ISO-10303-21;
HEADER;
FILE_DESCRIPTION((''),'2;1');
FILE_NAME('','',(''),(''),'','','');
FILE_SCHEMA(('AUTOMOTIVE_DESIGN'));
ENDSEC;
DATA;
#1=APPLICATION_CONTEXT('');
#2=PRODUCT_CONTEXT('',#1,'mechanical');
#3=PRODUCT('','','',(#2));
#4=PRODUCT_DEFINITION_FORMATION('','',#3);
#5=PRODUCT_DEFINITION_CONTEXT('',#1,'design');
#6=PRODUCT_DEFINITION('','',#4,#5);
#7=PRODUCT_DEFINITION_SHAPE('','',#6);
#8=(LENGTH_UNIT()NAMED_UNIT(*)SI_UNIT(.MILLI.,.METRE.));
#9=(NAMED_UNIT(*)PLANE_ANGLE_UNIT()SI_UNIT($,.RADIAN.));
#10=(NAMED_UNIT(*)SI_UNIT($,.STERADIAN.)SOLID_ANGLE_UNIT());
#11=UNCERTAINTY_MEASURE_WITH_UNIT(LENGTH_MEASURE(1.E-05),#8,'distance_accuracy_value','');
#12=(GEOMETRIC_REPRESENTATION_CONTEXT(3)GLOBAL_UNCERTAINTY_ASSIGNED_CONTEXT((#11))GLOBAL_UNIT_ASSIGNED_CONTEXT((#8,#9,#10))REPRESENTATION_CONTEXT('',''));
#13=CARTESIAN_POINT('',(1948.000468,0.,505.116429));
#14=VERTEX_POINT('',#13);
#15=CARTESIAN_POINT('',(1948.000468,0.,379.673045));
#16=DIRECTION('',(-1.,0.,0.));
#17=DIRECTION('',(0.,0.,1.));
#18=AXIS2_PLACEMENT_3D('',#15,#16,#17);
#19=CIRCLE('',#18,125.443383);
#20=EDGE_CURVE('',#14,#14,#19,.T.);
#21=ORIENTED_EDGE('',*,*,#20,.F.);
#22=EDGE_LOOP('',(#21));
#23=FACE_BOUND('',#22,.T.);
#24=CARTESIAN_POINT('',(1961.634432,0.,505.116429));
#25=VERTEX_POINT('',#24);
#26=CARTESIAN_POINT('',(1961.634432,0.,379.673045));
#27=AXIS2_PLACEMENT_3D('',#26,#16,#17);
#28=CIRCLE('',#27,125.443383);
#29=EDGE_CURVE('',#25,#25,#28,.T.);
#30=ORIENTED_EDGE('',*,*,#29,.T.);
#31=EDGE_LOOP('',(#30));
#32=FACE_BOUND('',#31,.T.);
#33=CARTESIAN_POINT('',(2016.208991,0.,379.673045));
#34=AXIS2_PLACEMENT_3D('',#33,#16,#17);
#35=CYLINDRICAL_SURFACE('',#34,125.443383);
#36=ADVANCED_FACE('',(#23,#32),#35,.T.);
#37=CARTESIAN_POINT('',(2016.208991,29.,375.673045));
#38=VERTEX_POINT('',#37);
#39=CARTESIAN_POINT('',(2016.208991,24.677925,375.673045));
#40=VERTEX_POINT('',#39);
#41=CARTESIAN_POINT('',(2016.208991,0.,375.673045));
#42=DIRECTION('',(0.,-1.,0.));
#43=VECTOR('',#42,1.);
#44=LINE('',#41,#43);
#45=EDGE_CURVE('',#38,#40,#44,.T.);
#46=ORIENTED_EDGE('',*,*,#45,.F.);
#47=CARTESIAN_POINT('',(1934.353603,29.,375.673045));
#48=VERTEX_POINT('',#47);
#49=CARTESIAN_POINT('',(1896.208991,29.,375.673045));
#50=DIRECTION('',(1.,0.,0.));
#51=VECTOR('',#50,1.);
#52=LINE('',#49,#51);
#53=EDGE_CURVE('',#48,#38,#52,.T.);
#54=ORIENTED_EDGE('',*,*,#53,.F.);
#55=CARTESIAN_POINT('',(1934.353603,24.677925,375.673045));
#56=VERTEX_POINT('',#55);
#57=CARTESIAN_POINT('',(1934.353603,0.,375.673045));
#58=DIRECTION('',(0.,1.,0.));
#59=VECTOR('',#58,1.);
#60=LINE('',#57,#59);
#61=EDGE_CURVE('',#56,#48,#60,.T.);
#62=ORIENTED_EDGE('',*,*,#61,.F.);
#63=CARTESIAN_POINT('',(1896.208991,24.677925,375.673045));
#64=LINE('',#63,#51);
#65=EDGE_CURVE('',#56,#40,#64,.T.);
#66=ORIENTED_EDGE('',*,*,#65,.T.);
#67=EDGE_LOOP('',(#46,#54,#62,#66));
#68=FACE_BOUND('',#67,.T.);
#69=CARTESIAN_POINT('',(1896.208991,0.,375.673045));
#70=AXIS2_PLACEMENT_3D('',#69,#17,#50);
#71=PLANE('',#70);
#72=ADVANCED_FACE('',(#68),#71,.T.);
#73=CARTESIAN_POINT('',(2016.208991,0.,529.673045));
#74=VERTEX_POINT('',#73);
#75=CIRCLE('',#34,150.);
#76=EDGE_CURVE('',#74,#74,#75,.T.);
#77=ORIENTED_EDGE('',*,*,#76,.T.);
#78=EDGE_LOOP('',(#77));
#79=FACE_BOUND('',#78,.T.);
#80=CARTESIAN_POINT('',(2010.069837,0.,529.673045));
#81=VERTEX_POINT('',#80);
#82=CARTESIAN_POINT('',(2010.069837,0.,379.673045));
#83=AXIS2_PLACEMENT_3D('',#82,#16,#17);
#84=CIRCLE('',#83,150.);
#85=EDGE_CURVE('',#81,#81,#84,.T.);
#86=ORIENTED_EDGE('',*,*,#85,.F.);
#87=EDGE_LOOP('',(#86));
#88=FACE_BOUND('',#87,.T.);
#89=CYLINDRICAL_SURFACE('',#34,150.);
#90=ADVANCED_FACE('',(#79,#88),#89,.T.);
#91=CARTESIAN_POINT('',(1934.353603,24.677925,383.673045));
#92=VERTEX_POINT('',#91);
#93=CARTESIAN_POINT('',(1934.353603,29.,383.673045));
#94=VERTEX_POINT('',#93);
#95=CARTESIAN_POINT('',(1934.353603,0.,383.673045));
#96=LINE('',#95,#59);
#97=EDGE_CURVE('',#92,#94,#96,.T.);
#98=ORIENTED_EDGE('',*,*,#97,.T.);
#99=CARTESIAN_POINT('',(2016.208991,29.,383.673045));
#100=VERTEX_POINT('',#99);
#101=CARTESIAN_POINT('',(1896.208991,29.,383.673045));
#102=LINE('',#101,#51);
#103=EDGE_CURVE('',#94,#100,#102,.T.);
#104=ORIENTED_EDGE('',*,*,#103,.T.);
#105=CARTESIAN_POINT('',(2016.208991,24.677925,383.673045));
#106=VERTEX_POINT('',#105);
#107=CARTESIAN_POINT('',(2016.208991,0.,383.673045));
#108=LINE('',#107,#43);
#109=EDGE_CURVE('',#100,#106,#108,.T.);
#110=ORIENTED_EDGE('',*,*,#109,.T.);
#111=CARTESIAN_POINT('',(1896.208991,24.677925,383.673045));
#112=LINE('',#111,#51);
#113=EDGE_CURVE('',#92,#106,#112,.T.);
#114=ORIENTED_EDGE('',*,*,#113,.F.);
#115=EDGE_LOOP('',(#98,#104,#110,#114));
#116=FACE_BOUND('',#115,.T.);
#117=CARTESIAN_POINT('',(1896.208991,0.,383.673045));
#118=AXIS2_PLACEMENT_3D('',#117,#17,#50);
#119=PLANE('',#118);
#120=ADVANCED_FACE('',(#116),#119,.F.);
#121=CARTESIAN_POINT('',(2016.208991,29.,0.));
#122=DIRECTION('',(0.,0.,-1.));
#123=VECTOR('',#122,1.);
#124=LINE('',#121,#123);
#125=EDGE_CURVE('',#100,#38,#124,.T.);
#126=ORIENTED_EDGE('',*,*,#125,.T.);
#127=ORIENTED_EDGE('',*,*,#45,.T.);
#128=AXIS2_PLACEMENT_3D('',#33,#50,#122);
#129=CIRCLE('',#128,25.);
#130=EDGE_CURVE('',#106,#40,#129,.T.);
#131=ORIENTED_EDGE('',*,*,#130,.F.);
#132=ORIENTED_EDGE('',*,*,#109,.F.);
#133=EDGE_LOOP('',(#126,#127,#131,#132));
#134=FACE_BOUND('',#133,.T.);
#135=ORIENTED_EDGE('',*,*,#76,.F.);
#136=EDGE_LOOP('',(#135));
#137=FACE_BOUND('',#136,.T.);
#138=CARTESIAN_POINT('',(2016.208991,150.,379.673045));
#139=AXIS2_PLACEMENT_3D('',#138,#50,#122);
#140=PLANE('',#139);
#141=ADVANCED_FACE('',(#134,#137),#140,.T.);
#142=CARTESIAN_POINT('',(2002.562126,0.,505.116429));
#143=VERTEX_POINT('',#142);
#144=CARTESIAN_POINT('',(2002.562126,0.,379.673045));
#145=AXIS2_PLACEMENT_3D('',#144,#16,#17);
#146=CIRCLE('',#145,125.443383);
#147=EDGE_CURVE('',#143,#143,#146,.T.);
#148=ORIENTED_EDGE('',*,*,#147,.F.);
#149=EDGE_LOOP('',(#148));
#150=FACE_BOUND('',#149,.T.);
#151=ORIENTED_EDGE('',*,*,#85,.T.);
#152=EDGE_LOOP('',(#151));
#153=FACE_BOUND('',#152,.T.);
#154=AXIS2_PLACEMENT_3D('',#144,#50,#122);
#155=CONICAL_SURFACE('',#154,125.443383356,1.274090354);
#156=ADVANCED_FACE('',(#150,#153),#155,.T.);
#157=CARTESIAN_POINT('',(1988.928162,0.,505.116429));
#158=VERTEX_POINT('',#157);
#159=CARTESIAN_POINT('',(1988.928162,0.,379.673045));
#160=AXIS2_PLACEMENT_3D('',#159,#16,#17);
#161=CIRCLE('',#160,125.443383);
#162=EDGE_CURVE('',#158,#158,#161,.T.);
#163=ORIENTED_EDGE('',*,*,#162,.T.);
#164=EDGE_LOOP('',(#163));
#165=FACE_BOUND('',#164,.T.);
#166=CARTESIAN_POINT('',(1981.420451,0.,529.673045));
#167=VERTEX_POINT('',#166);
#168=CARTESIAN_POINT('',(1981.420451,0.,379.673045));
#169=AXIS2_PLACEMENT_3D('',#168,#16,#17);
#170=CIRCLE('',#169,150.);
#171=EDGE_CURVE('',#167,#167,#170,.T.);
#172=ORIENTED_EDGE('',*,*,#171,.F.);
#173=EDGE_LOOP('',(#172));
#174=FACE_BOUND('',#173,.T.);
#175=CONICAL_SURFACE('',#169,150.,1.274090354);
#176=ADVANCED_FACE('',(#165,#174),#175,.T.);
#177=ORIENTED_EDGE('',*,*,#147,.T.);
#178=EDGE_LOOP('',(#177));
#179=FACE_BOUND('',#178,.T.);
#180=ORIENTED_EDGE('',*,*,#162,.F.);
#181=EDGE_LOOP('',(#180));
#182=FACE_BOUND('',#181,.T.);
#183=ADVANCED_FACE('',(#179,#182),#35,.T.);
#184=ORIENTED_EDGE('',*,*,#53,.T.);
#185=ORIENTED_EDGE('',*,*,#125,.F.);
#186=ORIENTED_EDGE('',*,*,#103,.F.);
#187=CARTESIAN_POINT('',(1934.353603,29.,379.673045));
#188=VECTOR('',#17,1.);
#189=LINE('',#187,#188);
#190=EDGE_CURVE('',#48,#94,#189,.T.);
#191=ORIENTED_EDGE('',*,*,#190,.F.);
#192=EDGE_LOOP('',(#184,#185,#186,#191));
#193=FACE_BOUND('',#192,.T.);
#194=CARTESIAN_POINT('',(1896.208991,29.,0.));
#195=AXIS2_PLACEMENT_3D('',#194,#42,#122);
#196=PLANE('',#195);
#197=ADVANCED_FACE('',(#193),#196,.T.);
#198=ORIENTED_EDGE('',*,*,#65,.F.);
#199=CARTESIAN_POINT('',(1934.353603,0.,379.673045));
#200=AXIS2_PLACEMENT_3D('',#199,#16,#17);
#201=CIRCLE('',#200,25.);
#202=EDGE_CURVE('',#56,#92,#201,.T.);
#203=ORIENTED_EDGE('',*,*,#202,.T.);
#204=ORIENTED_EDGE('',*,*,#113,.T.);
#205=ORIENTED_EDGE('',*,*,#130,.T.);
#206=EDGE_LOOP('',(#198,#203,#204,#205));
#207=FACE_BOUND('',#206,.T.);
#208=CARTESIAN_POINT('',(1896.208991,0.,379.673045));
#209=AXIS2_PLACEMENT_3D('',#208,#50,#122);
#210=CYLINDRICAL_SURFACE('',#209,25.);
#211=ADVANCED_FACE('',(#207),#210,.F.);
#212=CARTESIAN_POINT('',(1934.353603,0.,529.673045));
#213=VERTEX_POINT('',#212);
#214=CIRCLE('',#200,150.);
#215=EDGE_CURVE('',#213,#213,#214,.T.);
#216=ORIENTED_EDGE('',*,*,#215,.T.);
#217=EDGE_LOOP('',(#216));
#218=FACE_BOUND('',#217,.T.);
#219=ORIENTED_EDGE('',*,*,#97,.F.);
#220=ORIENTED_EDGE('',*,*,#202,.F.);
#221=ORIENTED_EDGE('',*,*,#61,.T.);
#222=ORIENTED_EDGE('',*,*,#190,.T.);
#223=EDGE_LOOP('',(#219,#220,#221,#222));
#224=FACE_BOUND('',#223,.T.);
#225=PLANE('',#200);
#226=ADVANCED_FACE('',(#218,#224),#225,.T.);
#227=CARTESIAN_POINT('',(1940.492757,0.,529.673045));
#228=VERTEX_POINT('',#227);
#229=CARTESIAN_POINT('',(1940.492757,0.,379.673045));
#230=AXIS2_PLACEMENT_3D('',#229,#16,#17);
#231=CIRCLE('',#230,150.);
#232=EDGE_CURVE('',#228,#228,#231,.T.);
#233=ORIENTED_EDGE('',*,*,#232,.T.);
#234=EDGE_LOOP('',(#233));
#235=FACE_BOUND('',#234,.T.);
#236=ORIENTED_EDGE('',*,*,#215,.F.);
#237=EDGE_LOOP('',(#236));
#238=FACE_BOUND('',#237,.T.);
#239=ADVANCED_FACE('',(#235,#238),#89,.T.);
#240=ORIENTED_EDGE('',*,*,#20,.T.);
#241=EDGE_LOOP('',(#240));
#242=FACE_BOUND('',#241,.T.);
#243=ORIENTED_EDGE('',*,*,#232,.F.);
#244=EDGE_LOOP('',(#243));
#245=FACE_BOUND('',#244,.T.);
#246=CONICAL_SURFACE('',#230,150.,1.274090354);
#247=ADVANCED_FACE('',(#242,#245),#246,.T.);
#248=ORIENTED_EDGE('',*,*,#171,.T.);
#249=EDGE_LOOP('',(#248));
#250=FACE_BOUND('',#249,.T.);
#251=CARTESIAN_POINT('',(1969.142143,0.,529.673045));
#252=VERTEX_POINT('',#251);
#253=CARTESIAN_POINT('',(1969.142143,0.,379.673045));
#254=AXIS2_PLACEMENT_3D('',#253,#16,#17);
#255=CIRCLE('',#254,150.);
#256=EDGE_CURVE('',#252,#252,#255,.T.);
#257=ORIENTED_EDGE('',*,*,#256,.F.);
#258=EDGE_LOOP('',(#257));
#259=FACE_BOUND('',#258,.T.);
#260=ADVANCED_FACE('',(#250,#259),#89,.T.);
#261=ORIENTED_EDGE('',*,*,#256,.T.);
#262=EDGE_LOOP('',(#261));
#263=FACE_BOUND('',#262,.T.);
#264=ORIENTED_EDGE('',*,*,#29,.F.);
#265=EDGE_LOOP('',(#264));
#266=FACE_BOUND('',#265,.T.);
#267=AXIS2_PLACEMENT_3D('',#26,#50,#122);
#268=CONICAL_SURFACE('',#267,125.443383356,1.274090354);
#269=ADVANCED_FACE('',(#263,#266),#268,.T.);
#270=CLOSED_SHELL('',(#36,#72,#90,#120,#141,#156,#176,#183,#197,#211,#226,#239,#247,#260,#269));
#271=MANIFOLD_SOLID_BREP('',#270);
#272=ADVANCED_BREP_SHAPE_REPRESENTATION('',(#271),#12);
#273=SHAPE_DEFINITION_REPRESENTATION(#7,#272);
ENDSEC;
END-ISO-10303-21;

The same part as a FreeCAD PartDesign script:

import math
import FreeCAD as App
import Part
import Sketcher
from FreeCAD import Vector
Q = App.Units.Quantity


def add_polygon(sketch, points):
    """Adds a closed chain of lines whose ends are joined by coincident constraints."""
    first, n = sketch.GeometryCount, len(points)
    for a, b in zip(points, points[1:] + points[:1]):
        sketch.addGeometry(Part.LineSegment(App.Vector(*a, 0), App.Vector(*b, 0)), False)
    for i in range(n):
        sketch.addConstraint(Sketcher.Constraint("Coincident", first + i, 2, first + (i + 1) % n, 1))

doc = App.newDocument("Part")
body = doc.addObject("PartDesign::Body", "Body")

# Sketch on XY plane
sketch1 = body.newObject("Sketcher::SketchObject", "Sketch")
sketch1.AttachmentSupport = (doc.getObject("XY_Plane"), [""])
sketch1.MapMode = "FlatFace"
sketch1.AttachmentOffset = App.Placement(Vector(0, 0, 379.673045), App.Rotation())
add_polygon(sketch1, [(2016.208991, 150), (2016.208991, 0), (1934.353603, 0), (1934.353603, 150), (1940.492757, 150), (1948.000468, 125.443383), (1961.634432, 125.443383), (1969.142143, 150), (1981.420451, 150), (1988.928162, 125.443383), (2002.562126, 125.443383), (2010.069837, 150)])  # lines 0-11
sketch1.addConstraint([
    Sketcher.Constraint("Vertical", 0),
    Sketcher.Constraint("Horizontal", 1),
    Sketcher.Constraint("Vertical", 2),
    Sketcher.Constraint("Horizontal", 3),
    Sketcher.Constraint("Horizontal", 5),
    Sketcher.Constraint("Horizontal", 7),
    Sketcher.Constraint("Horizontal", 9),
    Sketcher.Constraint("Horizontal", 11),
    Sketcher.Constraint("PointOnObject", 0, 2, -1),
    Sketcher.Constraint("Parallel", 4, 8),
    Sketcher.Constraint("Parallel", 6, 10),
    Sketcher.Constraint("Horizontal", 3, 2, 6, 2),
    Sketcher.Constraint("Horizontal", 5, 2, 8, 2),
    Sketcher.Constraint("Horizontal", 7, 2, 10, 2),
    Sketcher.Constraint("Equal", 5, 9),
    Sketcher.Constraint("Equal", 3, 11),
    Sketcher.Constraint("Equal", 4, 6),
    Sketcher.Constraint("DistanceY", 0, 2, 0, 1, Q("150 mm")),
    Sketcher.Constraint("Angle", 4, Q("-73 deg")),
    Sketcher.Constraint("DistanceX", 1, 2, 1, 1, Q("81.855389 mm")),
    Sketcher.Constraint("DistanceX", 7, 1, 7, 2, Q("12.278308 mm")),
    Sketcher.Constraint("Distance", 4, Q("25.678652 mm")),
    Sketcher.Constraint("DistanceX", 3, 1, 3, 2, Q("6.139154 mm")),
    Sketcher.Constraint("DistanceX", -1, 1, 0, 2, Q("2016.208991 mm")),
])
revolution = body.newObject("PartDesign::Revolution", "Revolution")
revolution.Profile = sketch1
revolution.ReferenceAxis = (sketch1, ["H_Axis"])
revolution.Angle = 360

# Sketch on YZ plane
sketch2 = body.newObject("Sketcher::SketchObject", "Sketch001")
sketch2.AttachmentSupport = (doc.getObject("YZ_Plane"), [""])
sketch2.MapMode = "FlatFace"
sketch2.AttachmentOffset = App.Placement(Vector(0, 0, 1934.353603), App.Rotation())
sketch2.addGeometry(Part.Circle(Vector(0, 379.673045, 0), Vector(0, 0, 1), 20), False)
sketch2.addConstraint([
    Sketcher.Constraint("PointOnObject", 0, 3, -2),
    Sketcher.Constraint("Diameter", 0, Q("40 mm")),
    Sketcher.Constraint("DistanceY", -1, 1, 0, 3, Q("379.673045 mm")),
])
pocket1 = body.newObject("PartDesign::Pocket", "Pocket")
pocket1.Profile = sketch2
pocket1.Length = 160
pocket1.Reversed = True

# Sketch on YZ plane
sketch3 = body.newObject("Sketcher::SketchObject", "Sketch002")
sketch3.AttachmentSupport = (doc.getObject("YZ_Plane"), [""])
sketch3.MapMode = "FlatFace"
sketch3.AttachmentOffset = App.Placement(Vector(0, 0, 2016.208991), App.Rotation())
sketch3.addGeometry(Part.Circle(Vector(0, 379.673045, 0), Vector(0, 0, 1), 25), False)
sketch3.addConstraint([
    Sketcher.Constraint("PointOnObject", 0, 3, -2),
    Sketcher.Constraint("Diameter", 0, Q("50 mm")),
    Sketcher.Constraint("DistanceY", -1, 1, 0, 3, Q("379.673045 mm")),
])
pocket2 = body.newObject("PartDesign::Pocket", "Pocket001")
pocket2.Profile = sketch3
pocket2.Length = 120

# Sketch on YZ plane
sketch4 = body.newObject("Sketcher::SketchObject", "Sketch003")
sketch4.AttachmentSupport = (doc.getObject("YZ_Plane"), [""])
sketch4.MapMode = "FlatFace"
sketch4.AttachmentOffset = App.Placement(Vector(0, 0, 2016.208991), App.Rotation())
sketch4.addGeometry([
    Part.ArcOfCircle(Part.Circle(Vector(0, 379.673045, 0), Vector(0, 0, 1), 25), math.radians(-9.206896), math.radians(0)),  # 0
    Part.LineSegment(Vector(24.677925, 375.673045, 0), Vector(29, 375.673045, 0)),  # 1
    Part.LineSegment(Vector(29, 375.673045, 0), Vector(29, 383.673045, 0)),  # 2
    Part.LineSegment(Vector(29, 383.673045, 0), Vector(24.677925, 383.673045, 0)),  # 3
    Part.ArcOfCircle(Part.Circle(Vector(0, 379.673045, 0), Vector(0, 0, 1), 25), math.radians(0), math.radians(9.206896)),  # 4
], False)
sketch4.addConstraint([
    Sketcher.Constraint("Coincident", 0, 1, 1, 1),
    Sketcher.Constraint("Coincident", 1, 2, 2, 1),
    Sketcher.Constraint("Coincident", 2, 2, 3, 1),
    Sketcher.Constraint("Coincident", 3, 2, 4, 2),
    Sketcher.Constraint("Tangent", 4, 1, 0, 2),
    Sketcher.Constraint("Horizontal", 1),
    Sketcher.Constraint("Vertical", 2),
    Sketcher.Constraint("Horizontal", 3),
    Sketcher.Constraint("Equal", 0, 4),
    Sketcher.Constraint("PointOnObject", 0, 3, -2),
    Sketcher.Constraint("Horizontal", 0, 3, 4, 1),
    Sketcher.Constraint("Vertical", 0, 1, 3, 2),
    Sketcher.Constraint("Radius", 0, Q("25 mm")),
    Sketcher.Constraint("DistanceY", 2, 1, 2, 2, Q("8 mm")),
    Sketcher.Constraint("DistanceX", -1, 1, 1, 2, Q("29 mm")),
    Sketcher.Constraint("DistanceY", -1, 1, 0, 3, Q("379.673045 mm")),
])
pocket3 = body.newObject("PartDesign::Pocket", "Pocket002")
pocket3.Profile = sketch4
pocket3.Length = 120

doc.recompute()
